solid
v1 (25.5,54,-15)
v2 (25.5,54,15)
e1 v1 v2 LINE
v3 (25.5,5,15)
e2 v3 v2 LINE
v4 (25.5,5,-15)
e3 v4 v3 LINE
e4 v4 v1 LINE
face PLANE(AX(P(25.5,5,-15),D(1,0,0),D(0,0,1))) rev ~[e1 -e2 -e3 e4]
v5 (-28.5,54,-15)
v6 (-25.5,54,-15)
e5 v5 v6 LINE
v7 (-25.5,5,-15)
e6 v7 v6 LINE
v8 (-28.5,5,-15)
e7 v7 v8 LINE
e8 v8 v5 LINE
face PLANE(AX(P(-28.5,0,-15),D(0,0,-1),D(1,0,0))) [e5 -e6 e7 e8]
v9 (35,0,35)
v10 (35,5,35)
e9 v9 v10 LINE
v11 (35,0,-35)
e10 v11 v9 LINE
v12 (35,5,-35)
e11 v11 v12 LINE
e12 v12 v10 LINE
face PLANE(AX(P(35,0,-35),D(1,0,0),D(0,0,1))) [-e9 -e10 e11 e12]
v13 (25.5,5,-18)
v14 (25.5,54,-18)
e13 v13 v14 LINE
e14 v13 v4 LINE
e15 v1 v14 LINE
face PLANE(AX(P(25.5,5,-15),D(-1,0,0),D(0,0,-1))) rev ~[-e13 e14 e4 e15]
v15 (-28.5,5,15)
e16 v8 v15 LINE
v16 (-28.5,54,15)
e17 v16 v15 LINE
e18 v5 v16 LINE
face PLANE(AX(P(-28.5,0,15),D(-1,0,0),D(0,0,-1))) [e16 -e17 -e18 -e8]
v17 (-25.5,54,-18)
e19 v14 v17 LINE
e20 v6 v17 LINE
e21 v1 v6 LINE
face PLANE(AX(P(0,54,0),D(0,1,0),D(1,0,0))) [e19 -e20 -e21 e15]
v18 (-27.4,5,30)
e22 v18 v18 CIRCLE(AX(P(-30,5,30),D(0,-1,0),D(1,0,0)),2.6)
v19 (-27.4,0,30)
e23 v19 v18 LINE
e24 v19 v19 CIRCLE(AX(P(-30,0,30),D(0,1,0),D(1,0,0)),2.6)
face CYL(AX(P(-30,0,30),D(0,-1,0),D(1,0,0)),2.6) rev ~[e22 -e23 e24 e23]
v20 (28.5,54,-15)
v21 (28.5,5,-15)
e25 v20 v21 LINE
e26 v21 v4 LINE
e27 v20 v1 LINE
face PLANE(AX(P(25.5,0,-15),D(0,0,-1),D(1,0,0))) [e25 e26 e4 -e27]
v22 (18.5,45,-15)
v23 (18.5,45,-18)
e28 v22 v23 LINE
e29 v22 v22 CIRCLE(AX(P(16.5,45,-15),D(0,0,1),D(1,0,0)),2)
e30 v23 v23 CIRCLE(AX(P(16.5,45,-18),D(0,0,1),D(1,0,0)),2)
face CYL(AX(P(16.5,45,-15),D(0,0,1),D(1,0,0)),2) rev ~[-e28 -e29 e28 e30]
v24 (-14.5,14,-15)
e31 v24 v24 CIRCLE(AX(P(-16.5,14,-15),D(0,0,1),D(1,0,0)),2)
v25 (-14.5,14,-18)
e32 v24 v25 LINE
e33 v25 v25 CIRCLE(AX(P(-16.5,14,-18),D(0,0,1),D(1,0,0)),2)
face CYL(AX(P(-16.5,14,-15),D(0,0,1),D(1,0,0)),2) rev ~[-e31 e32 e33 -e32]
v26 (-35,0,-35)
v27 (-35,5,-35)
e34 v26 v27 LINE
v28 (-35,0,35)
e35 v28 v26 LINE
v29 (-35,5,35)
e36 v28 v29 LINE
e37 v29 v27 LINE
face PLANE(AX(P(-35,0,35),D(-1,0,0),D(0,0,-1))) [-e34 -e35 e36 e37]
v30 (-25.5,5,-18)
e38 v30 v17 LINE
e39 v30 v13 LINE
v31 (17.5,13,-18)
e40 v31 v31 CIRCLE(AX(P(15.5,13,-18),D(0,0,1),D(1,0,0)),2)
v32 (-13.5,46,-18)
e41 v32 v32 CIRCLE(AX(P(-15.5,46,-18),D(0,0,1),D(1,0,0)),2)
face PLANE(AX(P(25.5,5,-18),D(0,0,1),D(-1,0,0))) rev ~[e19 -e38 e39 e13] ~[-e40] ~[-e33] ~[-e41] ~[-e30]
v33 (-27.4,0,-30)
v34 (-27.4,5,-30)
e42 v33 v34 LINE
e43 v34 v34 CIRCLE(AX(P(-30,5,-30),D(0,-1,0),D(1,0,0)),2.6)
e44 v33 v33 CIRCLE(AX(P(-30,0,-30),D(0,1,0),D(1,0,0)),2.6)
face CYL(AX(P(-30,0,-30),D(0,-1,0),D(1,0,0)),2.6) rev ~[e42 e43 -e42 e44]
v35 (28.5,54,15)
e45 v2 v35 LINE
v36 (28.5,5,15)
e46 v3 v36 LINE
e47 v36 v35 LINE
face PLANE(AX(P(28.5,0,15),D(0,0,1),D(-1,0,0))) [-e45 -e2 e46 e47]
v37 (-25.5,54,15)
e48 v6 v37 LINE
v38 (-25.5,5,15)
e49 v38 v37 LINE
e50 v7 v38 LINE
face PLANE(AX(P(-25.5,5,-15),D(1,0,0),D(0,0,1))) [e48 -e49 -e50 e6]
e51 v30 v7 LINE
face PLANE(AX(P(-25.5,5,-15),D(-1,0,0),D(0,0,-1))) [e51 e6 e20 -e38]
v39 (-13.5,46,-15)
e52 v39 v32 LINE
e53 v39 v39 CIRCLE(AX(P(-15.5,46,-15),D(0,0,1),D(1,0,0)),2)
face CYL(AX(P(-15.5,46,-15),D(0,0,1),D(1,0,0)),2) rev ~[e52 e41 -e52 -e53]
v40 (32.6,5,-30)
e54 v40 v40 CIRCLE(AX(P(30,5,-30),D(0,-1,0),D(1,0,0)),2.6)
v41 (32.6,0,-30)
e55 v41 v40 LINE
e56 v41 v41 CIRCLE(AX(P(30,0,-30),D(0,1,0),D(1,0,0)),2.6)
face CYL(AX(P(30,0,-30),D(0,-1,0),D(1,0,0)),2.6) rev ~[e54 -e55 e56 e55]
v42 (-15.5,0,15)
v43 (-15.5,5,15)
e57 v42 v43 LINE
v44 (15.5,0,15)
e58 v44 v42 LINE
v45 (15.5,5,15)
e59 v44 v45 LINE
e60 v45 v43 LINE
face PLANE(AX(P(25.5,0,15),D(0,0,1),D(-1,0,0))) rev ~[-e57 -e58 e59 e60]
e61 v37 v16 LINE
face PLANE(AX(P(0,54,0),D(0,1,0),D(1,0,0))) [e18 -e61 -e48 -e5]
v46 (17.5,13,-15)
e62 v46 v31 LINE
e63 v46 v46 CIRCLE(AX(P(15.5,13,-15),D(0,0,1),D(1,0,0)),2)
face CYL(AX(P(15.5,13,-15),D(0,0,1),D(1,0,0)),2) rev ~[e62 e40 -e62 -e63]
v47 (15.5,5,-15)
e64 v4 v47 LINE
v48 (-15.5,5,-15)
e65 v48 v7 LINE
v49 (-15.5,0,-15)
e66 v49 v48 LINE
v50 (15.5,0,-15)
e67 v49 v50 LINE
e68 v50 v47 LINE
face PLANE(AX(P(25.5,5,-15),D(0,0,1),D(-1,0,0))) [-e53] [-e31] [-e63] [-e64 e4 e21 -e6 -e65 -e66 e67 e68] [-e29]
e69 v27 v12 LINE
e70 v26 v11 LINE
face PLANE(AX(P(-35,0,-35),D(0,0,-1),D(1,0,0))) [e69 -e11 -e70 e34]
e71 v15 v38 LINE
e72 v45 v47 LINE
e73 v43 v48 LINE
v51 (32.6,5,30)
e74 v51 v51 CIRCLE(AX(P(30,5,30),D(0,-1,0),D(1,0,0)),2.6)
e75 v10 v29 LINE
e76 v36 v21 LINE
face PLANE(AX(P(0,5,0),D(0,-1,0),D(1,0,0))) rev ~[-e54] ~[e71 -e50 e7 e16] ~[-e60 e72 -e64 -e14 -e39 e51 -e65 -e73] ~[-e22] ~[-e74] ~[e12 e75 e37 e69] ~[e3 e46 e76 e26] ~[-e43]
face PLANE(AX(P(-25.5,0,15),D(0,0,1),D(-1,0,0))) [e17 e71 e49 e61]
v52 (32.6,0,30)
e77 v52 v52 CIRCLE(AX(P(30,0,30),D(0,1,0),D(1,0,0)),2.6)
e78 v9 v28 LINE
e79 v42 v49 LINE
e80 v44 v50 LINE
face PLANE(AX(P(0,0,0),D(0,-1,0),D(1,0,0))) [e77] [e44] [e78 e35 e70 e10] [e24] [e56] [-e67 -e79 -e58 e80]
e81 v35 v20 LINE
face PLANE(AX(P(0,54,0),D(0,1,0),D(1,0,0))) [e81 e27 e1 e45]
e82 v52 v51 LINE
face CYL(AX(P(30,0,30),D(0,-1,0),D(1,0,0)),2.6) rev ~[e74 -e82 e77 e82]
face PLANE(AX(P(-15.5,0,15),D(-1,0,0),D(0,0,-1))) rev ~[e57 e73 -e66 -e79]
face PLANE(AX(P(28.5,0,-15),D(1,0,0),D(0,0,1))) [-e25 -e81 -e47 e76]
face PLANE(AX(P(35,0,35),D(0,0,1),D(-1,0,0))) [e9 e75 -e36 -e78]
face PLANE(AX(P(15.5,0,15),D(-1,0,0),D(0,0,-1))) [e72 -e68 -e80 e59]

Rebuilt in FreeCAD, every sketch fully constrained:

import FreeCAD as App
import Part
import Sketcher
Q = App.Units.Quantity

doc = App.newDocument("Part")
body = doc.addObject("PartDesign::Body", "Body")
body.AllowCompound = True

# Sketch on XZ plane
sketch1 = doc.addObject("Sketcher::SketchObject", "Sketch")
body.addObject(sketch1)
sketch1.AttachmentSupport = (doc.XZ_Plane, [""])
sketch1.MapMode = "FlatFace"
sketch1.addGeometry([
    Part.LineSegment(App.Vector(-26, -15, 0), App.Vector(-26, 15, 0)),  # 0
    Part.LineSegment(App.Vector(-26, 15, 0), App.Vector(-16, 15, 0)),  # 1
    Part.LineSegment(App.Vector(-16, 15, 0), App.Vector(-16, -15, 0)),  # 2
    Part.LineSegment(App.Vector(-16, -15, 0), App.Vector(-26, -15, 0)),  # 3
    Part.LineSegment(App.Vector(16, -15, 0), App.Vector(16, 15, 0)),  # 4
    Part.LineSegment(App.Vector(16, 15, 0), App.Vector(26, 15, 0)),  # 5
    Part.LineSegment(App.Vector(26, 15, 0), App.Vector(26, -15, 0)),  # 6
    Part.LineSegment(App.Vector(26, -15, 0), App.Vector(16, -15, 0)),  # 7
], False)
sketch1.addConstraint([
    Sketcher.Constraint("Coincident", 0, 2, 1, 1),
    Sketcher.Constraint("Coincident", 1, 2, 2, 1),
    Sketcher.Constraint("Coincident", 2, 2, 3, 1),
    Sketcher.Constraint("Coincident", 3, 2, 0, 1),
    Sketcher.Constraint("Coincident", 4, 2, 5, 1),
    Sketcher.Constraint("Coincident", 5, 2, 6, 1),
    Sketcher.Constraint("Coincident", 6, 2, 7, 1),
    Sketcher.Constraint("Coincident", 7, 2, 4, 1),
    Sketcher.Constraint("Vertical", 0),
    Sketcher.Constraint("Horizontal", 1),
    Sketcher.Constraint("Vertical", 2),
    Sketcher.Constraint("Horizontal", 3),
    Sketcher.Constraint("Vertical", 4),
    Sketcher.Constraint("Horizontal", 5),
    Sketcher.Constraint("Vertical", 6),
    Sketcher.Constraint("Horizontal", 7),
    Sketcher.Constraint("Symmetric", 2, 2, 4, 2, -1, 1),
    Sketcher.Constraint("Symmetric", 0, 2, 6, 2, -1, 1),
    Sketcher.Constraint("Horizontal", 1, 2, 4, 2),
    Sketcher.Constraint("DistanceX", 1, 1, 1, 2, Q("10 mm")),
    Sketcher.Constraint("DistanceY", 0, 1, 0, 2, Q("30 mm")),
    Sketcher.Constraint("DistanceX", 0, 2, 5, 2, Q("51 mm")),
])
pad1 = doc.addObject("PartDesign::Pad", "Pad")
body.addObject(pad1)
pad1.Profile = sketch1
pad1.Length = 5
pad1.Reversed = True

# Sketch on XZ plane
sketch2 = doc.addObject("Sketcher::SketchObject", "Sketch001")
body.addObject(sketch2)
sketch2.AttachmentSupport = (doc.XZ_Plane, [""])
sketch2.MapMode = "FlatFace"
sketch2.addGeometry([
    Part.LineSegment(App.Vector(-25.5, 18, 0), App.Vector(25.5, 18, 0)),  # 0
    Part.LineSegment(App.Vector(25.5, 18, 0), App.Vector(25.5, 15, 0)),  # 1
    Part.LineSegment(App.Vector(25.5, 15, 0), App.Vector(-25.5, 15, 0)),  # 2
    Part.LineSegment(App.Vector(-25.5, 15, 0), App.Vector(-25.5, 18, 0)),  # 3
    Part.LineSegment(App.Vector(25.5, 15, 0), App.Vector(28.5, 15, 0)),  # 4
    Part.LineSegment(App.Vector(28.5, 15, 0), App.Vector(28.5, -15, 0)),  # 5
    Part.LineSegment(App.Vector(28.5, -15, 0), App.Vector(25.5, -15, 0)),  # 6
    Part.LineSegment(App.Vector(25.5, -15, 0), App.Vector(25.5, 15, 0)),  # 7
    Part.LineSegment(App.Vector(-28.5, 15, 0), App.Vector(-25.5, 15, 0)),  # 8
    Part.LineSegment(App.Vector(-25.5, 15, 0), App.Vector(-25.5, -15, 0)),  # 9
    Part.LineSegment(App.Vector(-25.5, -15, 0), App.Vector(-28.5, -15, 0)),  # 10
    Part.LineSegment(App.Vector(-28.5, -15, 0), App.Vector(-28.5, 15, 0)),  # 11
    Part.LineSegment(App.Vector(-25.5, -15, 0), App.Vector(25.5, -15, 0)),  # 12
    Part.LineSegment(App.Vector(25.5, -15, 0), App.Vector(25.5, -18, 0)),  # 13
    Part.LineSegment(App.Vector(25.5, -18, 0), App.Vector(-25.5, -18, 0)),  # 14
    Part.LineSegment(App.Vector(-25.5, -18, 0), App.Vector(-25.5, -15, 0)),  # 15
], False)
sketch2.addConstraint([
    Sketcher.Constraint("Coincident", 0, 2, 1, 1),
    Sketcher.Constraint("Coincident", 1, 2, 2, 1),
    Sketcher.Constraint("Coincident", 2, 2, 3, 1),
    Sketcher.Constraint("Coincident", 3, 2, 0, 1),
    Sketcher.Constraint("Coincident", 4, 2, 5, 1),
    Sketcher.Constraint("Coincident", 5, 2, 6, 1),
    Sketcher.Constraint("Coincident", 6, 2, 7, 1),
    Sketcher.Constraint("Coincident", 7, 2, 4, 1),
    Sketcher.Constraint("Coincident", 8, 2, 9, 1),
    Sketcher.Constraint("Coincident", 9, 2, 10, 1),
    Sketcher.Constraint("Coincident", 10, 2, 11, 1),
    Sketcher.Constraint("Coincident", 11, 2, 8, 1),
    Sketcher.Constraint("Coincident", 12, 2, 13, 1),
    Sketcher.Constraint("Coincident", 13, 2, 14, 1),
    Sketcher.Constraint("Coincident", 14, 2, 15, 1),
    Sketcher.Constraint("Coincident", 15, 2, 12, 1),
    Sketcher.Constraint("Horizontal", 0),
    Sketcher.Constraint("Vertical", 1),
    Sketcher.Constraint("Horizontal", 2),
    Sketcher.Constraint("Vertical", 3),
    Sketcher.Constraint("Horizontal", 4),
    Sketcher.Constraint("Vertical", 5),
    Sketcher.Constraint("Horizontal", 6),
    Sketcher.Constraint("Vertical", 7),
    Sketcher.Constraint("Horizontal", 8),
    Sketcher.Constraint("Vertical", 9),
    Sketcher.Constraint("Horizontal", 10),
    Sketcher.Constraint("Vertical", 11),
    Sketcher.Constraint("Horizontal", 12),
    Sketcher.Constraint("Vertical", 13),
    Sketcher.Constraint("Horizontal", 14),
    Sketcher.Constraint("Vertical", 15),
    Sketcher.Constraint("Coincident", 7, 2, 1, 2),
    Sketcher.Constraint("Coincident", 8, 2, 2, 2),
    Sketcher.Constraint("Coincident", 12, 2, 6, 2),
    Sketcher.Constraint("Coincident", 15, 2, 9, 2),
    Sketcher.Constraint("Symmetric", 2, 2, 6, 2, -1, 1),
    Sketcher.Constraint("Equal", 6, 8),
    Sketcher.Constraint("Equal", 10, 1),
    Sketcher.Constraint("Equal", 3, 13),
    Sketcher.Constraint("DistanceX", 0, 1, 0, 2, Q("51 mm")),
    Sketcher.Constraint("DistanceX", 4, 1, 4, 2, Q("3 mm")),
    Sketcher.Constraint("DistanceY", 5, 2, 5, 1, Q("30 mm")),
])
pad2 = doc.addObject("PartDesign::Pad", "Pad001")
body.addObject(pad2)
pad2.Profile = sketch2
pad2.Length = 5
pad2.Reversed = True

# Sketch on XZ plane
sketch3 = doc.addObject("Sketcher::SketchObject", "Sketch002")
body.addObject(sketch3)
sketch3.AttachmentSupport = (doc.XZ_Plane, [""])
sketch3.MapMode = "FlatFace"
sketch3.AttachmentOffset = App.Placement(App.Vector(0, 0, -5), App.Rotation())
sketch3.addGeometry([
    Part.LineSegment(App.Vector(25.5, -15, 0), App.Vector(25.5, -18, 0)),
    Part.LineSegment(App.Vector(25.5, -18, 0), App.Vector(-25.5, -18, 0)),
    Part.LineSegment(App.Vector(-25.5, -18, 0), App.Vector(-25.5, -15, 0)),
    Part.LineSegment(App.Vector(-25.5, -15, 0), App.Vector(25.5, -15, 0)),
], False)
sketch3.addConstraint([
    Sketcher.Constraint("Coincident", 0, 2, 1, 1),
    Sketcher.Constraint("Coincident", 1, 2, 2, 1),
    Sketcher.Constraint("Coincident", 2, 2, 3, 1),
    Sketcher.Constraint("Coincident", 3, 2, 0, 1),
    Sketcher.Constraint("Vertical", 0),
    Sketcher.Constraint("Horizontal", 1),
    Sketcher.Constraint("Vertical", 2),
    Sketcher.Constraint("Horizontal", 3),
    Sketcher.Constraint("DistanceX", 1, 2, 1, 1, Q("51 mm")),
    Sketcher.Constraint("DistanceY", 0, 2, 0, 1, Q("3 mm")),
    Sketcher.Constraint("DistanceY", 0, 2, -1, 1, Q("18 mm")),
    Sketcher.Constraint("DistanceX", -1, 1, 0, 2, Q("25.5 mm")),
])
pad3 = doc.addObject("PartDesign::Pad", "Pad002")
body.addObject(pad3)
pad3.Profile = sketch3
pad3.Length = 49
pad3.Reversed = True

# Sketch on XY plane
sketch4 = doc.addObject("Sketcher::SketchObject", "Sketch003")
body.addObject(sketch4)
sketch4.AttachmentSupport = (doc.XY_Plane, [""])
sketch4.MapMode = "FlatFace"
sketch4.AttachmentOffset = App.Placement(App.Vector(0, 0, -15), App.Rotation())
sketch4.addGeometry([
    Part.Circle(App.Vector(16.5, 45, 0), App.Vector(0, 0, 1), 2),
    Part.Circle(App.Vector(-15.5, 46, 0), App.Vector(0, 0, 1), 2),
    Part.Circle(App.Vector(-16.5, 14, 0), App.Vector(0, 0, 1), 2),
    Part.Circle(App.Vector(15.5, 13, 0), App.Vector(0, 0, 1), 2),
], False)
sketch4.addConstraint([
    Sketcher.Constraint("Equal", 0, 1),
    Sketcher.Constraint("Equal", 1, 2),
    Sketcher.Constraint("Equal", 2, 3),
    Sketcher.Constraint("Diameter", 0, Q("4 mm")),
    Sketcher.Constraint("DistanceY", -1, 1, 0, 3, Q("45 mm")),
    Sketcher.Constraint("DistanceY", -1, 1, 1, 3, Q("46 mm")),
    Sketcher.Constraint("DistanceY", -1, 1, 2, 3, Q("14 mm")),
    Sketcher.Constraint("DistanceY", -1, 1, 3, 3, Q("13 mm")),
    Sketcher.Constraint("DistanceX", 1, 3, 0, 3, Q("32 mm")),
    Sketcher.Constraint("DistanceX", 2, 3, 1, 3, Q("1 mm")),
    Sketcher.Constraint("DistanceX", 3, 3, 0, 3, Q("1 mm")),
    Sketcher.Constraint("DistanceX", -1, 1, 0, 3, Q("16.5 mm")),
])
pocket1 = doc.addObject("PartDesign::Pocket", "Pocket")
body.addObject(pocket1)
pocket1.Profile = sketch4
pocket1.Length = 49

# Sketch on XZ plane
sketch5 = doc.addObject("Sketcher::SketchObject", "Sketch004")
body.addObject(sketch5)
sketch5.AttachmentSupport = (doc.XZ_Plane, [""])
sketch5.MapMode = "FlatFace"
sketch5.AttachmentOffset = App.Placement(App.Vector(0, 0, -5), App.Rotation())
sketch5.addGeometry([
    Part.LineSegment(App.Vector(-25.5, -15, 0), App.Vector(-28.5, -15, 0)),  # 0
    Part.LineSegment(App.Vector(-28.5, -15, 0), App.Vector(-28.5, 15, 0)),  # 1
    Part.LineSegment(App.Vector(-28.5, 15, 0), App.Vector(-25.5, 15, 0)),  # 2
    Part.LineSegment(App.Vector(-25.5, 15, 0), App.Vector(-25.5, -15, 0)),  # 3
    Part.LineSegment(App.Vector(28.5, 15, 0), App.Vector(28.5, -15, 0)),  # 4
    Part.LineSegment(App.Vector(28.5, -15, 0), App.Vector(25.5, -15, 0)),  # 5
    Part.LineSegment(App.Vector(25.5, -15, 0), App.Vector(25.5, 15, 0)),  # 6
    Part.LineSegment(App.Vector(25.5, 15, 0), App.Vector(28.5, 15, 0)),  # 7
], False)
sketch5.addConstraint([
    Sketcher.Constraint("Coincident", 0, 2, 1, 1),
    Sketcher.Constraint("Coincident", 1, 2, 2, 1),
    Sketcher.Constraint("Coincident", 2, 2, 3, 1),
    Sketcher.Constraint("Coincident", 3, 2, 0, 1),
    Sketcher.Constraint("Coincident", 4, 2, 5, 1),
    Sketcher.Constraint("Coincident", 5, 2, 6, 1),
    Sketcher.Constraint("Coincident", 6, 2, 7, 1),
    Sketcher.Constraint("Coincident", 7, 2, 4, 1),
    Sketcher.Constraint("Horizontal", 0),
    Sketcher.Constraint("Vertical", 1),
    Sketcher.Constraint("Horizontal", 2),
    Sketcher.Constraint("Vertical", 3),
    Sketcher.Constraint("Vertical", 4),
    Sketcher.Constraint("Horizontal", 5),
    Sketcher.Constraint("Vertical", 6),
    Sketcher.Constraint("Horizontal", 7),
    Sketcher.Constraint("Symmetric", 1, 2, 4, 2, -1, 1),
    Sketcher.Constraint("Symmetric", 3, 2, 6, 2, -1, 1),
    Sketcher.Constraint("Horizontal", 3, 2, 4, 2),
    Sketcher.Constraint("DistanceX", 0, 2, 0, 1, Q("3 mm")),
    Sketcher.Constraint("DistanceY", 1, 1, 1, 2, Q("30 mm")),
    Sketcher.Constraint("DistanceX", 3, 2, 4, 2, Q("54 mm")),
])
pad4 = doc.addObject("PartDesign::Pad", "Pad003")
body.addObject(pad4)
pad4.Profile = sketch5
pad4.Length = 49
pad4.Reversed = True

# Sketch on XZ plane
sketch6 = doc.addObject("Sketcher::SketchObject", "Sketch005")
body.addObject(sketch6)
sketch6.AttachmentSupport = (doc.XZ_Plane, [""])
sketch6.MapMode = "FlatFace"
sketch6.addGeometry([
    Part.LineSegment(App.Vector(-35, 35, 0), App.Vector(-35, -35, 0)),  # 0
    Part.LineSegment(App.Vector(-35, -35, 0), App.Vector(35, -35, 0)),  # 1
    Part.LineSegment(App.Vector(35, -35, 0), App.Vector(35, 35, 0)),  # 2
    Part.LineSegment(App.Vector(35, 35, 0), App.Vector(-35, 35, 0)),  # 3
    Part.Circle(App.Vector(-30, 30, 0), App.Vector(0, 0, 1), 2.6),  # 4
    Part.Circle(App.Vector(-30, -30, 0), App.Vector(0, 0, 1), 2.6),  # 5
    Part.Circle(App.Vector(30, -30, 0), App.Vector(0, 0, 1), 2.6),  # 6
    Part.Circle(App.Vector(30, 30, 0), App.Vector(0, 0, 1), 2.6),  # 7
    Part.LineSegment(App.Vector(15.5, 15, 0), App.Vector(15.5, -15, 0)),  # 8
    Part.LineSegment(App.Vector(15.5, -15, 0), App.Vector(-15.5, -15, 0)),  # 9
    Part.LineSegment(App.Vector(-15.5, -15, 0), App.Vector(-15.5, 15, 0)),  # 10
    Part.LineSegment(App.Vector(-15.5, 15, 0), App.Vector(15.5, 15, 0)),  # 11
], False)
sketch6.addConstraint([
    Sketcher.Constraint("Coincident", 0, 2, 1, 1),
    Sketcher.Constraint("Coincident", 1, 2, 2, 1),
    Sketcher.Constraint("Coincident", 2, 2, 3, 1),
    Sketcher.Constraint("Coincident", 3, 2, 0, 1),
    Sketcher.Constraint("Coincident", 8, 2, 9, 1),
    Sketcher.Constraint("Coincident", 9, 2, 10, 1),
    Sketcher.Constraint("Coincident", 10, 2, 11, 1),
    Sketcher.Constraint("Coincident", 11, 2, 8, 1),
    Sketcher.Constraint("Vertical", 0),
    Sketcher.Constraint("Horizontal", 1),
    Sketcher.Constraint("Vertical", 2),
    Sketcher.Constraint("Horizontal", 3),
    Sketcher.Constraint("Vertical", 8),
    Sketcher.Constraint("Horizontal", 9),
    Sketcher.Constraint("Vertical", 10),
    Sketcher.Constraint("Horizontal", 11),
    Sketcher.Constraint("Equal", 4, 5),
    Sketcher.Constraint("Equal", 5, 6),
    Sketcher.Constraint("Equal", 6, 7),
    Sketcher.Constraint("Symmetric", 4, 3, 6, 3, -1, 1),
    Sketcher.Constraint("Symmetric", 5, 3, 7, 3, -1, 1),
    Sketcher.Constraint("Symmetric", 0, 2, 2, 2, -1, 1),
    Sketcher.Constraint("Symmetric", 8, 2, 10, 2, -1, 1),
    Sketcher.Constraint("Symmetric", 5, 3, 6, 3, -2),
    Sketcher.Constraint("Equal", 3, 0),
    Sketcher.Constraint("Diameter", 4, Q("5.2 mm")),
    Sketcher.Constraint("DistanceX", 1, 1, 1, 2, Q("70 mm")),
    Sketcher.Constraint("DistanceY", 5, 3, 4, 3, Q("60 mm")),
    Sketcher.Constraint("DistanceX", 5, 3, 6, 3, Q("60 mm")),
    Sketcher.Constraint("DistanceX", 9, 2, 9, 1, Q("31 mm")),
    Sketcher.Constraint("DistanceY", 8, 2, 8, 1, Q("30 mm")),
])
pad5 = doc.addObject("PartDesign::Pad", "Pad004")
body.addObject(pad5)
pad5.Profile = sketch6
pad5.Length = 5
pad5.Reversed = True

doc.recompute()
